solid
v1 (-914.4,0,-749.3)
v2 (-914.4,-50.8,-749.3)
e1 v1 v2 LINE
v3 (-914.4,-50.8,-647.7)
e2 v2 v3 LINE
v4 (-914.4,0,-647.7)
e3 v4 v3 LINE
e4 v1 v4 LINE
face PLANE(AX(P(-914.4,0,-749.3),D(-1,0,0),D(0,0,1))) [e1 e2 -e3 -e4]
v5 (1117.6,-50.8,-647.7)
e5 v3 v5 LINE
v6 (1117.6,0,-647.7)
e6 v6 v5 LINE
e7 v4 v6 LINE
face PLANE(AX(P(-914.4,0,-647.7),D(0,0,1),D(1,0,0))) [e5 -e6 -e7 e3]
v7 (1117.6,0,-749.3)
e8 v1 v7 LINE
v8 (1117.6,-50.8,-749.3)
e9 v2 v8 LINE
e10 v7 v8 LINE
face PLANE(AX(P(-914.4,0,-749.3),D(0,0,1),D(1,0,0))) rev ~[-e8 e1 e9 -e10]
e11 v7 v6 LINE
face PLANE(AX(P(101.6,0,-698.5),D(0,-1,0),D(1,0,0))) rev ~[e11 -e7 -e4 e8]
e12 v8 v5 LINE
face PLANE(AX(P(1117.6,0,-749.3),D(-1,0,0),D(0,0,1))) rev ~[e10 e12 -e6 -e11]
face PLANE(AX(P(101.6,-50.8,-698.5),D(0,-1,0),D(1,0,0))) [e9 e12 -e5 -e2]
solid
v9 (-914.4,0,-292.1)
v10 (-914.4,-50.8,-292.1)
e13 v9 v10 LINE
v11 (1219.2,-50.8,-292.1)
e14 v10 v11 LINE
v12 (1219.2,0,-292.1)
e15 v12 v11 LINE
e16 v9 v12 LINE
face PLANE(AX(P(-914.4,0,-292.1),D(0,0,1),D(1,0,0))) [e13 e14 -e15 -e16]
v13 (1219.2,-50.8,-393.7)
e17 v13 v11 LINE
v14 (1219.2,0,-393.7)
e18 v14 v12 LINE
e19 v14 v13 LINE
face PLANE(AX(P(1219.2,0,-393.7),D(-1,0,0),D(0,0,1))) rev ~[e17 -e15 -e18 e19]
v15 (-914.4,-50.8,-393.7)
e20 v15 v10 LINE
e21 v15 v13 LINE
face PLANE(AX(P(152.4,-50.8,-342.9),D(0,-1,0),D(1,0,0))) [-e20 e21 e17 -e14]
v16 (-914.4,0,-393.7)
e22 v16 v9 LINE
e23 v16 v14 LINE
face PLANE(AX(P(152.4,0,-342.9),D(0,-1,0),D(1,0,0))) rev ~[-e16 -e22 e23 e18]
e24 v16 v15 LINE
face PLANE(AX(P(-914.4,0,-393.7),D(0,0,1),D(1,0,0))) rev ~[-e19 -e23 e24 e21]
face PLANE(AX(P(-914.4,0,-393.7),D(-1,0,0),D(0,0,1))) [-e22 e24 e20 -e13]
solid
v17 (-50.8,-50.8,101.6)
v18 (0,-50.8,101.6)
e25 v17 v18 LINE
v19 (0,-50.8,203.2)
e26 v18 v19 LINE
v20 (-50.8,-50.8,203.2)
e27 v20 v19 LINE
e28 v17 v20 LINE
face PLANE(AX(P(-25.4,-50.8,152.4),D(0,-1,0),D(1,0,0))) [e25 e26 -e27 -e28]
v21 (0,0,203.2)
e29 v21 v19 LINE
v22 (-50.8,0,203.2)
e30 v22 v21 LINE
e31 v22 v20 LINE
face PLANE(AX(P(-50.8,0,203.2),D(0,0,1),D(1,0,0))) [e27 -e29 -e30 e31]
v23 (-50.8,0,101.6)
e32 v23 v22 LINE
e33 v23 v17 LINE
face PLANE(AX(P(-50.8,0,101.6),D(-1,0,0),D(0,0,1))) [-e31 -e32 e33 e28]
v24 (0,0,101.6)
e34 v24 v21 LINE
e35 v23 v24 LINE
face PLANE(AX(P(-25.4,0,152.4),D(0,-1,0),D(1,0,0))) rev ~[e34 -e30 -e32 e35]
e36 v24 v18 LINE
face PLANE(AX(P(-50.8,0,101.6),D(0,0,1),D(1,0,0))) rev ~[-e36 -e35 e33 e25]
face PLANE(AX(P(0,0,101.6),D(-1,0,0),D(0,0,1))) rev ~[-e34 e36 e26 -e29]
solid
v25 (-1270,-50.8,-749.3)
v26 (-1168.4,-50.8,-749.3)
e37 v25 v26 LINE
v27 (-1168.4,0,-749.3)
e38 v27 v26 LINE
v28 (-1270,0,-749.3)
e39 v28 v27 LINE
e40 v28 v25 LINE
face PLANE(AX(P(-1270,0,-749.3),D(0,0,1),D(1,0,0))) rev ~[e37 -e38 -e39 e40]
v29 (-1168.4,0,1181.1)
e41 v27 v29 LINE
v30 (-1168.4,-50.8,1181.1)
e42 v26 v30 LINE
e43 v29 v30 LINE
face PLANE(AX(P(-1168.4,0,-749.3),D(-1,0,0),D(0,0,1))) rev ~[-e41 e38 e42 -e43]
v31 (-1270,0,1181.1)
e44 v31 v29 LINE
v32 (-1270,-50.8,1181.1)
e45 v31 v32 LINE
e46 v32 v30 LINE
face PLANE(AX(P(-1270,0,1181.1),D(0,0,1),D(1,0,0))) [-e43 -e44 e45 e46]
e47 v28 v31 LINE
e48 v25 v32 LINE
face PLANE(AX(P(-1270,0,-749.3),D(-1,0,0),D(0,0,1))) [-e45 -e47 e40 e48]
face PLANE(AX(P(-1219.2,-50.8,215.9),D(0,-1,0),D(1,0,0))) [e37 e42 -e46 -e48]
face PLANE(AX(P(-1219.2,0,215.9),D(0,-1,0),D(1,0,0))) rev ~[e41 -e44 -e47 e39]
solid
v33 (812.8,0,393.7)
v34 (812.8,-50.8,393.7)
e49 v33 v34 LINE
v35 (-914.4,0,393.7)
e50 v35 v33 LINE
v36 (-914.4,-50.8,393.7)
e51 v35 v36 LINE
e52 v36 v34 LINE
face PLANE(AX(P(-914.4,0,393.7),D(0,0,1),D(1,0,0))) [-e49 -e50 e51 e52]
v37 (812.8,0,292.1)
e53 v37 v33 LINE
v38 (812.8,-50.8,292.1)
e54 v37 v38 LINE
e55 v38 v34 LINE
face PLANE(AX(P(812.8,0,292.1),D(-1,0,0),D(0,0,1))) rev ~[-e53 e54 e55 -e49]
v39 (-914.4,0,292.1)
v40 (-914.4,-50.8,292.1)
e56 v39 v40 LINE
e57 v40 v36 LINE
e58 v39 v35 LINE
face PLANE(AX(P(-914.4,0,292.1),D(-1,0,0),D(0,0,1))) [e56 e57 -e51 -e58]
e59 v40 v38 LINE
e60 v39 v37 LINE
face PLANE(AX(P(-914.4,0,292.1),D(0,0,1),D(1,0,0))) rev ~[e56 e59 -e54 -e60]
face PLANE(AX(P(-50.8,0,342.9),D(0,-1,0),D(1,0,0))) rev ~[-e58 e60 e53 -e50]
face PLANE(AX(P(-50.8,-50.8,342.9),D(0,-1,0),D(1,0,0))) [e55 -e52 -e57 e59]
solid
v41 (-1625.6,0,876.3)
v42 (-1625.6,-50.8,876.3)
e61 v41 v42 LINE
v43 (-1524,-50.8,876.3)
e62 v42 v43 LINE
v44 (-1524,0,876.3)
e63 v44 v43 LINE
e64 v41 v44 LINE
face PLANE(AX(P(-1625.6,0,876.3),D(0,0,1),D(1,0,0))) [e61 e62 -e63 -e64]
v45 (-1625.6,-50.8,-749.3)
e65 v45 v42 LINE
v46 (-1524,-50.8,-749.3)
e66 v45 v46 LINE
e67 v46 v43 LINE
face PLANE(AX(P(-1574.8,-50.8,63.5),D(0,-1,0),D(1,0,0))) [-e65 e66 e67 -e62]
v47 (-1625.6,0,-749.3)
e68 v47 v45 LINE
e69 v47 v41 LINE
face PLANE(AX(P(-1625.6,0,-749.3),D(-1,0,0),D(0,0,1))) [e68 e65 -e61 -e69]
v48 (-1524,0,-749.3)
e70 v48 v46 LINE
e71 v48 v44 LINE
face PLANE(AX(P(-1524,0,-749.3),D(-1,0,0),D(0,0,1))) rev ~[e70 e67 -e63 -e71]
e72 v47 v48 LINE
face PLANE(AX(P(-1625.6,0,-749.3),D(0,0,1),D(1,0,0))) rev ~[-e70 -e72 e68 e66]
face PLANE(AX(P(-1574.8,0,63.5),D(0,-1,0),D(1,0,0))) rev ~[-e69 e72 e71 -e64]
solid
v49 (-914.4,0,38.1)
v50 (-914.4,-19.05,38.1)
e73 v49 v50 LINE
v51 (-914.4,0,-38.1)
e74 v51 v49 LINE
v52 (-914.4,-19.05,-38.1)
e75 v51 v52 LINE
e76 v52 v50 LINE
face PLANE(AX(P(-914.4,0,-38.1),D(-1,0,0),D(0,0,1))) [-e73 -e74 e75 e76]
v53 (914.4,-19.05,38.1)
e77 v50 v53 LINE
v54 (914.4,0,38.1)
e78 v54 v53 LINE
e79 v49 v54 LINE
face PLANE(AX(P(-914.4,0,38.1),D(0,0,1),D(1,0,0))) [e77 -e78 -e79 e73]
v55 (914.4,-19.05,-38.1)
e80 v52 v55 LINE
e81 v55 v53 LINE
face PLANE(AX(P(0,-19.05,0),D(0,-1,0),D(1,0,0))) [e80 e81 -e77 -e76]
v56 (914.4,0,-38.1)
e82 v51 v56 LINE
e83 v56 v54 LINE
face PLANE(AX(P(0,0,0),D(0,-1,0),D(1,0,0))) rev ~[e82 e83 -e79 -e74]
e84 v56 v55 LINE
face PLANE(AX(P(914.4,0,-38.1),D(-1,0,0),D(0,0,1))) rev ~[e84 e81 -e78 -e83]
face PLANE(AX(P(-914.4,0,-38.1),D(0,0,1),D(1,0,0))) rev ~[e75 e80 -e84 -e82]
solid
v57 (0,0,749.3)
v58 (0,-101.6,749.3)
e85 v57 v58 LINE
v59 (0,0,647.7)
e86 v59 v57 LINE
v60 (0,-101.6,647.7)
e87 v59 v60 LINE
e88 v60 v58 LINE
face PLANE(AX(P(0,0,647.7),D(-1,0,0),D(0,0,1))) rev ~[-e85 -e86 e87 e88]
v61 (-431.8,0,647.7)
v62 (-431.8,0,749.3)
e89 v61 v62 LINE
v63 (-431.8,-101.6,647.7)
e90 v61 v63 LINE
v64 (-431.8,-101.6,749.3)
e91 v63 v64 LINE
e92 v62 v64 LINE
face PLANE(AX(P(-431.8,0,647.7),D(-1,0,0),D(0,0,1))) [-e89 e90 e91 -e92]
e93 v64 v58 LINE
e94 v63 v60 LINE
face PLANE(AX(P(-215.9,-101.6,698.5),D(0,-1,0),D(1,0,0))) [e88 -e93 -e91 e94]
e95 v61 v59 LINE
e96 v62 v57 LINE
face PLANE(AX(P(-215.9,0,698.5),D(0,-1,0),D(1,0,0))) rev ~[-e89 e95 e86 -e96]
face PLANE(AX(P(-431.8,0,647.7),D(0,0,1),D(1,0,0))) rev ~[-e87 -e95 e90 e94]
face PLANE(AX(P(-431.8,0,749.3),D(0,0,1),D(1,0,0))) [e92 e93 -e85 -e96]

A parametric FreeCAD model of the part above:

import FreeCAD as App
import Part
import Sketcher
Q = App.Units.Quantity


def add_polygon(sketch, points):
    """Adds a closed chain of lines whose ends are joined by coincident constraints."""
    first, n = sketch.GeometryCount, len(points)
    for a, b in zip(points, points[1:] + points[:1]):
        sketch.addGeometry(Part.LineSegment(App.Vector(*a, 0), App.Vector(*b, 0)), False)
    for i in range(n):
        sketch.addConstraint(Sketcher.Constraint("Coincident", first + i, 2, first + (i + 1) % n, 1))

doc = App.newDocument("Part")
body = doc.addObject("PartDesign::Body", "Body")

# Sketch on XZ plane
sketch1 = body.newObject("Sketcher::SketchObject", "Sketch")
sketch1.AttachmentSupport = (doc.getObject("XZ_Plane"), [""])
sketch1.MapMode = "FlatFace"
add_polygon(sketch1, [(-914, 38), (-914, -38), (914, -38), (914, 38)])  # lines 0-3
sketch1.addConstraint([
    Sketcher.Constraint("Vertical", 0),
    Sketcher.Constraint("Horizontal", 1),
    Sketcher.Constraint("Vertical", 2),
    Sketcher.Constraint("Horizontal", 3),
    Sketcher.Constraint("Symmetric", 0, 2, 2, 2, -1, 1),
    Sketcher.Constraint("DistanceX", 1, 1, 1, 2, Q("72 in")),
    Sketcher.Constraint("DistanceY", 0, 2, 0, 1, Q("3 in")),
])
pad1 = body.newObject("PartDesign::Pad", "Pad")
pad1.Profile = sketch1
pad1.Length = Q("0.75 in")
body2 = doc.addObject("PartDesign::Body", "Body001")

# Sketch on XZ plane
sketch2 = body2.newObject("Sketcher::SketchObject", "Sketch001")
sketch2.AttachmentSupport = (doc.getObject("XZ_Plane001"), [""])
sketch2.MapMode = "FlatFace"
add_polygon(sketch2, [(-914, -292), (-914, -394), (1219, -394), (1219, -292)])  # lines 0-3
sketch2.addConstraint([
    Sketcher.Constraint("Vertical", 0),
    Sketcher.Constraint("Horizontal", 1),
    Sketcher.Constraint("Vertical", 2),
    Sketcher.Constraint("Horizontal", 3),
    Sketcher.Constraint("DistanceX", 1, 1, 1, 2, Q("84 in")),
    Sketcher.Constraint("DistanceY", 0, 2, 0, 1, Q("4 in")),
    Sketcher.Constraint("DistanceX", 0, 2, -1, 1, Q("36 in")),
    Sketcher.Constraint("DistanceY", 0, 2, -1, 1, Q("15.5 in")),
])
pad2 = body2.newObject("PartDesign::Pad", "Pad001")
pad2.Profile = sketch2
pad2.Length = Q("2 in")
body3 = doc.addObject("PartDesign::Body", "Body002")

# Sketch on XZ plane
sketch3 = body3.newObject("Sketcher::SketchObject", "Sketch002")
sketch3.AttachmentSupport = (doc.getObject("XZ_Plane002"), [""])
sketch3.MapMode = "FlatFace"
add_polygon(sketch3, [(-914, -648), (-914, -749), (1118, -749), (1118, -648)])  # lines 0-3
sketch3.addConstraint([
    Sketcher.Constraint("Vertical", 0),
    Sketcher.Constraint("Horizontal", 1),
    Sketcher.Constraint("Vertical", 2),
    Sketcher.Constraint("Horizontal", 3),
    Sketcher.Constraint("DistanceX", 1, 1, 1, 2, Q("80 in")),
    Sketcher.Constraint("DistanceY", 0, 2, 0, 1, Q("4 in")),
    Sketcher.Constraint("DistanceX", 0, 2, -1, 1, Q("36 in")),
    Sketcher.Constraint("DistanceY", 0, 2, -1, 1, Q("29.5 in")),
])
pad3 = body3.newObject("PartDesign::Pad", "Pad002")
pad3.Profile = sketch3
pad3.Length = Q("2 in")
body4 = doc.addObject("PartDesign::Body", "Body003")

# Sketch on XZ plane
sketch4 = body4.newObject("Sketcher::SketchObject", "Sketch003")
sketch4.AttachmentSupport = (doc.getObject("XZ_Plane003"), [""])
sketch4.MapMode = "FlatFace"
add_polygon(sketch4, [(-914, 394), (-914, 292), (813, 292), (813, 394)])  # lines 0-3
sketch4.addConstraint([
    Sketcher.Constraint("Vertical", 0),
    Sketcher.Constraint("Horizontal", 1),
    Sketcher.Constraint("Vertical", 2),
    Sketcher.Constraint("Horizontal", 3),
    Sketcher.Constraint("DistanceX", 1, 1, 1, 2, Q("68 in")),
    Sketcher.Constraint("DistanceY", 0, 2, 0, 1, Q("4 in")),
    Sketcher.Constraint("DistanceX", 0, 2, -1, 1, Q("36 in")),
    Sketcher.Constraint("DistanceY", -1, 1, 0, 2, Q("11.5 in")),
])
pad4 = body4.newObject("PartDesign::Pad", "Pad003")
pad4.Profile = sketch4
pad4.Length = Q("2 in")
body5 = doc.addObject("PartDesign::Body", "Body004")

# Sketch on XZ plane
sketch5 = body5.newObject("Sketcher::SketchObject", "Sketch004")
sketch5.AttachmentSupport = (doc.getObject("XZ_Plane004"), [""])
sketch5.MapMode = "FlatFace"
add_polygon(sketch5, [(-51, 203), (-51, 102), (0, 102), (0, 203)])  # lines 0-3
sketch5.addConstraint([
    Sketcher.Constraint("Vertical", 0),
    Sketcher.Constraint("Horizontal", 1),
    Sketcher.Constraint("Vertical", 2),
    Sketcher.Constraint("Horizontal", 3),
    Sketcher.Constraint("PointOnObject", 1, 2, -2),
    Sketcher.Constraint("DistanceX", 1, 1, 1, 2, Q("2 in")),
    Sketcher.Constraint("DistanceY", 0, 2, 0, 1, Q("4 in")),
    Sketcher.Constraint("DistanceY", -1, 1, 0, 2, Q("4 in")),
])
pad5 = body5.newObject("PartDesign::Pad", "Pad004")
pad5.Profile = sketch5
pad5.Length = Q("2 in")
body6 = doc.addObject("PartDesign::Body", "Body005")

# Sketch on XZ plane
sketch6 = body6.newObject("Sketcher::SketchObject", "Sketch005")
sketch6.AttachmentSupport = (doc.getObject("XZ_Plane005"), [""])
sketch6.MapMode = "FlatFace"
add_polygon(sketch6, [(-432, 749), (-432, 648), (0, 648), (0, 749)])  # lines 0-3
sketch6.addConstraint([
    Sketcher.Constraint("Vertical", 0),
    Sketcher.Constraint("Horizontal", 1),
    Sketcher.Constraint("Vertical", 2),
    Sketcher.Constraint("Horizontal", 3),
    Sketcher.Constraint("PointOnObject", 1, 2, -2),
    Sketcher.Constraint("DistanceX", 1, 1, 1, 2, Q("17 in")),
    Sketcher.Constraint("DistanceY", 0, 2, 0, 1, Q("4 in")),
    Sketcher.Constraint("DistanceY", -1, 1, 0, 2, Q("25.5 in")),
])
pad6 = body6.newObject("PartDesign::Pad", "Pad005")
pad6.Profile = sketch6
pad6.Length = Q("4 in")
body7 = doc.addObject("PartDesign::Body", "Body006")

# Sketch on XZ plane
sketch7 = body7.newObject("Sketcher::SketchObject", "Sketch006")
sketch7.AttachmentSupport = (doc.getObject("XZ_Plane006"), [""])
sketch7.MapMode = "FlatFace"
add_polygon(sketch7, [(-1270, 1181), (-1270, -749), (-1168, -749), (-1168, 1181)])  # lines 0-3
sketch7.addConstraint([
    Sketcher.Constraint("Vertical", 0),
    Sketcher.Constraint("Horizontal", 1),
    Sketcher.Constraint("Vertical", 2),
    Sketcher.Constraint("Horizontal", 3),
    Sketcher.Constraint("DistanceX", 1, 1, 1, 2, Q("4 in")),
    Sketcher.Constraint("DistanceY", 0, 2, 0, 1, Q("76 in")),
    Sketcher.Constraint("DistanceX", 0, 2, -1, 1, Q("50 in")),
    Sketcher.Constraint("DistanceY", 0, 2, -1, 1, Q("29.5 in")),
])
pad7 = body7.newObject("PartDesign::Pad", "Pad006")
pad7.Profile = sketch7
pad7.Length = Q("2 in")
body8 = doc.addObject("PartDesign::Body", "Body007")

# Sketch on XZ plane
sketch8 = body8.newObject("Sketcher::SketchObject", "Sketch007")
sketch8.AttachmentSupport = (doc.getObject("XZ_Plane007"), [""])
sketch8.MapMode = "FlatFace"
add_polygon(sketch8, [(-1626, 876), (-1626, -749), (-1524, -749), (-1524, 876)])  # lines 0-3
sketch8.addConstraint([
    Sketcher.Constraint("Vertical", 0),
    Sketcher.Constraint("Horizontal", 1),
    Sketcher.Constraint("Vertical", 2),
    Sketcher.Constraint("Horizontal", 3),
    Sketcher.Constraint("DistanceX", 1, 1, 1, 2, Q("4 in")),
    Sketcher.Constraint("DistanceY", 0, 2, 0, 1, Q("64 in")),
    Sketcher.Constraint("DistanceX", 0, 2, -1, 1, Q("64 in")),
    Sketcher.Constraint("DistanceY", 0, 2, -1, 1, Q("29.5 in")),
])
pad8 = body8.newObject("PartDesign::Pad", "Pad007")
pad8.Profile = sketch8
pad8.Length = Q("2 in")

doc.recompute()
